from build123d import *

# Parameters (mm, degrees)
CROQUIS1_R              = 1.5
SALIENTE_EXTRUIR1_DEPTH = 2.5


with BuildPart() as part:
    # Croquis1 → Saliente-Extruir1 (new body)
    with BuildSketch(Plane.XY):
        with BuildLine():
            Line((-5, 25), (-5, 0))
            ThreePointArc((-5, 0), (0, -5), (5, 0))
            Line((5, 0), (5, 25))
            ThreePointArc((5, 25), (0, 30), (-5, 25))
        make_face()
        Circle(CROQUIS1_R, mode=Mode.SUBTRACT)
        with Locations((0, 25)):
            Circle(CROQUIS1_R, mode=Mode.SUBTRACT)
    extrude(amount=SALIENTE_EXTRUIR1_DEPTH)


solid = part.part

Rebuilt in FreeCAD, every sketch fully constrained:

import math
import FreeCAD as App
import Part
import Sketcher

doc = App.newDocument("Part")
body = doc.addObject("PartDesign::Body", "Body")

sketch1 = body.newObject("Sketcher::SketchObject", "Sketch")
sketch1.AttachmentSupport = (doc.getObject("XY_Plane"), [""])
sketch1.MapMode = "FlatFace"
sketch1.addGeometry([
    Part.LineSegment(App.Vector(-5, 25, 0), App.Vector(-5, 0, 0)),
    Part.ArcOfCircle(Part.Circle(App.Vector(0, 0, 0), App.Vector(0, 0, 1), 5), math.radians(180), math.radians(360)),
    Part.LineSegment(App.Vector(5, 0, 0), App.Vector(5, 25, 0)),
    Part.ArcOfCircle(Part.Circle(App.Vector(0, 25, 0), App.Vector(0, 0, 1), 5), math.radians(0), math.radians(180)),
    Part.Circle(App.Vector(0, 0, 0), App.Vector(0, 0, 1), 1.5),
    Part.Circle(App.Vector(0, 25, 0), App.Vector(0, 0, 1), 1.5),
], False)
sketch1.addConstraint([
    Sketcher.Constraint("Tangent", 0, 2, 1, 1),
    Sketcher.Constraint("Tangent", 1, 2, 2, 1),
    Sketcher.Constraint("Tangent", 2, 2, 3, 1),
    Sketcher.Constraint("Tangent", 3, 2, 0, 1),
    Sketcher.Constraint("Vertical", 0),
    Sketcher.Constraint("Vertical", 2),
    Sketcher.Constraint("Coincident", 1, 3, -1, 1),
    Sketcher.Constraint("Coincident", 4, 3, -1, 1),
    Sketcher.Constraint("Coincident", 5, 3, 3, 3),
    Sketcher.Constraint("Equal", 4, 5),
    Sketcher.Constraint("Diameter", 4, 3.0),
    Sketcher.Constraint("Radius", 1, 5.0),
    Sketcher.Constraint("DistanceY", 0, 2, 0, 1, 25.0),
])
pad1 = body.newObject("PartDesign::Pad", "Pad")
pad1.Profile = sketch1
pad1.Length = 2.5

doc.recompute()
